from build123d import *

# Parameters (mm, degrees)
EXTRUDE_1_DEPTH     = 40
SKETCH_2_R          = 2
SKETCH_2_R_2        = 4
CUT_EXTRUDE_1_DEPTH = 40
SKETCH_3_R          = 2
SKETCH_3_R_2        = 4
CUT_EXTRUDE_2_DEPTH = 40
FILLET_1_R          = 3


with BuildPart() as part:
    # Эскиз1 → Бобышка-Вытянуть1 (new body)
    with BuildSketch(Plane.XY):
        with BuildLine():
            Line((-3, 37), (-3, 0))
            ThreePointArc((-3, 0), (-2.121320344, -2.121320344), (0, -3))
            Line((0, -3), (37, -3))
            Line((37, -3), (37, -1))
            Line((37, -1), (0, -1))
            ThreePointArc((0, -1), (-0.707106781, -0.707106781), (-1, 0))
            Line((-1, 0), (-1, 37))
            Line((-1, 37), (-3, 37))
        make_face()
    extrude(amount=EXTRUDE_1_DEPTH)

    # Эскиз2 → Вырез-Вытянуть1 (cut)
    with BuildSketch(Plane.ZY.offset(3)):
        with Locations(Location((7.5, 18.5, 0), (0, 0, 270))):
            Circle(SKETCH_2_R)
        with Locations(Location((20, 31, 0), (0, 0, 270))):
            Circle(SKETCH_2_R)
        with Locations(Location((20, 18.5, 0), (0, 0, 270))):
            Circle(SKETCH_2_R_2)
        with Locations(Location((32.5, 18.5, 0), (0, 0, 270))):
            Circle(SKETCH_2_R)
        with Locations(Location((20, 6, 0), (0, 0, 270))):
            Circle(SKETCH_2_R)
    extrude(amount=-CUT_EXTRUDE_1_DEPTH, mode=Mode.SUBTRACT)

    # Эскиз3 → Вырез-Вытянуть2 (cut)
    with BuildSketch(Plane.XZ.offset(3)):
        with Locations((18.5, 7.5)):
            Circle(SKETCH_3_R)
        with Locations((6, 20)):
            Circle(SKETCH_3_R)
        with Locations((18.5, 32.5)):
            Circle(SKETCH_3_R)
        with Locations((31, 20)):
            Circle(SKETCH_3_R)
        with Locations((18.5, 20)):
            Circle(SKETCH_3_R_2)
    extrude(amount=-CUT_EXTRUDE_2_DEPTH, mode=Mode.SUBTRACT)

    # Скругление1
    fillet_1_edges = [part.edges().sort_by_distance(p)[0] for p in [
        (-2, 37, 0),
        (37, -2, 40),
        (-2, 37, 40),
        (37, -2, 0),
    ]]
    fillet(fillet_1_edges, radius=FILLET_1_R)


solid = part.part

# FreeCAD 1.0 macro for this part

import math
import FreeCAD as App
import Part
import Sketcher
Q = App.Units.Quantity


def edges_at(feature, points):
    """Names of the edges that pass closest to the given points."""
    edges = feature.Shape.Edges
    near = lambda p: min(range(len(edges)), key=lambda i: edges[i].distToShape(Part.Vertex(*p))[0])
    return sorted({f"Edge{near(p) + 1}" for p in points})

doc = App.newDocument("Part")
body = doc.addObject("PartDesign::Body", "Body")

# Sketch on XY plane
sketch1 = body.newObject("Sketcher::SketchObject", "Sketch")
sketch1.AttachmentSupport = (doc.getObject("XY_Plane"), [""])
sketch1.MapMode = "FlatFace"
sketch1.addGeometry([
    Part.LineSegment(App.Vector(-3, 37, 0), App.Vector(-3, 0, 0)),  # 0
    Part.ArcOfCircle(Part.Circle(App.Vector(0, 0, 0), App.Vector(0, 0, 1), 3), math.radians(180), math.radians(270)),  # 1
    Part.LineSegment(App.Vector(0, -3, 0), App.Vector(37, -3, 0)),  # 2
    Part.LineSegment(App.Vector(37, -3, 0), App.Vector(37, -1, 0)),  # 3
    Part.LineSegment(App.Vector(37, -1, 0), App.Vector(0, -1, 0)),  # 4
    Part.ArcOfCircle(Part.Circle(App.Vector(0, 0, 0), App.Vector(0, 0, 1), 1), math.radians(-180), math.radians(-90)),  # 5
    Part.LineSegment(App.Vector(-1, 0, 0), App.Vector(-1, 37, 0)),  # 6
    Part.LineSegment(App.Vector(-1, 37, 0), App.Vector(-3, 37, 0)),  # 7
], False)
sketch1.addConstraint([
    Sketcher.Constraint("Tangent", 0, 2, 1, 1),
    Sketcher.Constraint("Tangent", 1, 2, 2, 1),
    Sketcher.Constraint("Coincident", 2, 2, 3, 1),
    Sketcher.Constraint("Coincident", 3, 2, 4, 1),
    Sketcher.Constraint("Tangent", 4, 2, 5, 2),
    Sketcher.Constraint("Tangent", 5, 1, 6, 1),
    Sketcher.Constraint("Coincident", 6, 2, 7, 1),
    Sketcher.Constraint("Coincident", 7, 2, 0, 1),
    Sketcher.Constraint("Vertical", 0),
    Sketcher.Constraint("Horizontal", 2),
    Sketcher.Constraint("Vertical", 3),
    Sketcher.Constraint("Horizontal", 4),
    Sketcher.Constraint("Vertical", 6),
    Sketcher.Constraint("Horizontal", 7),
    Sketcher.Constraint("Coincident", 1, 3, -1, 1),
    Sketcher.Constraint("Coincident", 5, 3, -1, 1),
    Sketcher.Constraint("Equal", 4, 0),
    Sketcher.Constraint("Radius", 1, Q("3 mm")),
    Sketcher.Constraint("Radius", 5, Q("1 mm")),
    Sketcher.Constraint("DistanceX", 2, 1, 2, 2, Q("37 mm")),
])
pad1 = body.newObject("PartDesign::Pad", "Pad")
pad1.Profile = sketch1
pad1.Length = 40

# Sketch on YZ plane
sketch2 = body.newObject("Sketcher::SketchObject", "Sketch001")
sketch2.AttachmentSupport = (doc.getObject("YZ_Plane"), [""])
sketch2.MapMode = "FlatFace"
sketch2.AttachmentOffset = App.Placement(App.Vector(0, 0, -3), App.Rotation())
sketch2.addGeometry([
    Part.Circle(App.Vector(18.5, 7.5, 0), App.Vector(0, 0, 1), 2),  # 0
    Part.Circle(App.Vector(31, 20, 0), App.Vector(0, 0, 1), 2),  # 1
    Part.Circle(App.Vector(18.5, 20, 0), App.Vector(0, 0, 1), 4),  # 2
    Part.Circle(App.Vector(18.5, 32.5, 0), App.Vector(0, 0, 1), 2),  # 3
    Part.Circle(App.Vector(6, 20, 0), App.Vector(0, 0, 1), 2),  # 4
], False)
sketch2.addConstraint([
    Sketcher.Constraint("Equal", 0, 1),
    Sketcher.Constraint("Equal", 1, 3),
    Sketcher.Constraint("Equal", 3, 4),
    Sketcher.Constraint("Horizontal", 1, 3, 2, 3),
    Sketcher.Constraint("Horizontal", 2, 3, 4, 3),
    Sketcher.Constraint("Vertical", 0, 3, 2, 3),
    Sketcher.Constraint("Vertical", 2, 3, 3, 3),
    Sketcher.Constraint("Diameter", 0, Q("4 mm")),
    Sketcher.Constraint("Diameter", 2, Q("8 mm")),
    Sketcher.Constraint("DistanceX", -1, 1, 1, 3, Q("31 mm")),
    Sketcher.Constraint("DistanceY", -1, 1, 1, 3, Q("20 mm")),
    Sketcher.Constraint("DistanceX", -1, 1, 4, 3, Q("6 mm")),
    Sketcher.Constraint("DistanceY", 0, 3, 3, 3, Q("25 mm")),
    Sketcher.Constraint("DistanceX", -1, 1, 0, 3, Q("18.5 mm")),
    Sketcher.Constraint("DistanceY", -1, 1, 0, 3, Q("7.5 mm")),
])
pocket1 = body.newObject("PartDesign::Pocket", "Pocket")
pocket1.Profile = sketch2
pocket1.Length = 40
pocket1.Reversed = True

# Sketch on XZ plane
sketch3 = body.newObject("Sketcher::SketchObject", "Sketch002")
sketch3.AttachmentSupport = (doc.getObject("XZ_Plane"), [""])
sketch3.MapMode = "FlatFace"
sketch3.AttachmentOffset = App.Placement(App.Vector(0, 0, 3), App.Rotation())
sketch3.addGeometry([
    Part.Circle(App.Vector(18.5, 7.5, 0), App.Vector(0, 0, 1), 2),  # 0
    Part.Circle(App.Vector(6, 20, 0), App.Vector(0, 0, 1), 2),  # 1
    Part.Circle(App.Vector(18.5, 32.5, 0), App.Vector(0, 0, 1), 2),  # 2
    Part.Circle(App.Vector(31, 20, 0), App.Vector(0, 0, 1), 2),  # 3
    Part.Circle(App.Vector(18.5, 20, 0), App.Vector(0, 0, 1), 4),  # 4
], False)
sketch3.addConstraint([
    Sketcher.Constraint("Equal", 0, 1),
    Sketcher.Constraint("Equal", 1, 2),
    Sketcher.Constraint("Equal", 2, 3),
    Sketcher.Constraint("Horizontal", 1, 3, 3, 3),
    Sketcher.Constraint("Horizontal", 3, 3, 4, 3),
    Sketcher.Constraint("Vertical", 0, 3, 2, 3),
    Sketcher.Constraint("Vertical", 2, 3, 4, 3),
    Sketcher.Constraint("Diameter", 0, Q("4 mm")),
    Sketcher.Constraint("Diameter", 4, Q("8 mm")),
    Sketcher.Constraint("DistanceX", -1, 1, 1, 3, Q("6 mm")),
    Sketcher.Constraint("DistanceY", -1, 1, 1, 3, Q("20 mm")),
    Sketcher.Constraint("DistanceX", -1, 1, 3, 3, Q("31 mm")),
    Sketcher.Constraint("DistanceY", 0, 3, 2, 3, Q("25 mm")),
    Sketcher.Constraint("DistanceX", -1, 1, 0, 3, Q("18.5 mm")),
    Sketcher.Constraint("DistanceY", -1, 1, 0, 3, Q("7.5 mm")),
])
pocket2 = body.newObject("PartDesign::Pocket", "Pocket001")
pocket2.Profile = sketch3
pocket2.Length = 40
doc.recompute()

fillet = body.newObject("PartDesign::Fillet", "Fillet")
fillet.Base = (pocket2, edges_at(pocket2, [
    (-2, 37, 0),
    (37, -2, 40),
    (-2, 37, 40),
    (37, -2, 0),
]))
fillet.Radius = 3

doc.recompute()
